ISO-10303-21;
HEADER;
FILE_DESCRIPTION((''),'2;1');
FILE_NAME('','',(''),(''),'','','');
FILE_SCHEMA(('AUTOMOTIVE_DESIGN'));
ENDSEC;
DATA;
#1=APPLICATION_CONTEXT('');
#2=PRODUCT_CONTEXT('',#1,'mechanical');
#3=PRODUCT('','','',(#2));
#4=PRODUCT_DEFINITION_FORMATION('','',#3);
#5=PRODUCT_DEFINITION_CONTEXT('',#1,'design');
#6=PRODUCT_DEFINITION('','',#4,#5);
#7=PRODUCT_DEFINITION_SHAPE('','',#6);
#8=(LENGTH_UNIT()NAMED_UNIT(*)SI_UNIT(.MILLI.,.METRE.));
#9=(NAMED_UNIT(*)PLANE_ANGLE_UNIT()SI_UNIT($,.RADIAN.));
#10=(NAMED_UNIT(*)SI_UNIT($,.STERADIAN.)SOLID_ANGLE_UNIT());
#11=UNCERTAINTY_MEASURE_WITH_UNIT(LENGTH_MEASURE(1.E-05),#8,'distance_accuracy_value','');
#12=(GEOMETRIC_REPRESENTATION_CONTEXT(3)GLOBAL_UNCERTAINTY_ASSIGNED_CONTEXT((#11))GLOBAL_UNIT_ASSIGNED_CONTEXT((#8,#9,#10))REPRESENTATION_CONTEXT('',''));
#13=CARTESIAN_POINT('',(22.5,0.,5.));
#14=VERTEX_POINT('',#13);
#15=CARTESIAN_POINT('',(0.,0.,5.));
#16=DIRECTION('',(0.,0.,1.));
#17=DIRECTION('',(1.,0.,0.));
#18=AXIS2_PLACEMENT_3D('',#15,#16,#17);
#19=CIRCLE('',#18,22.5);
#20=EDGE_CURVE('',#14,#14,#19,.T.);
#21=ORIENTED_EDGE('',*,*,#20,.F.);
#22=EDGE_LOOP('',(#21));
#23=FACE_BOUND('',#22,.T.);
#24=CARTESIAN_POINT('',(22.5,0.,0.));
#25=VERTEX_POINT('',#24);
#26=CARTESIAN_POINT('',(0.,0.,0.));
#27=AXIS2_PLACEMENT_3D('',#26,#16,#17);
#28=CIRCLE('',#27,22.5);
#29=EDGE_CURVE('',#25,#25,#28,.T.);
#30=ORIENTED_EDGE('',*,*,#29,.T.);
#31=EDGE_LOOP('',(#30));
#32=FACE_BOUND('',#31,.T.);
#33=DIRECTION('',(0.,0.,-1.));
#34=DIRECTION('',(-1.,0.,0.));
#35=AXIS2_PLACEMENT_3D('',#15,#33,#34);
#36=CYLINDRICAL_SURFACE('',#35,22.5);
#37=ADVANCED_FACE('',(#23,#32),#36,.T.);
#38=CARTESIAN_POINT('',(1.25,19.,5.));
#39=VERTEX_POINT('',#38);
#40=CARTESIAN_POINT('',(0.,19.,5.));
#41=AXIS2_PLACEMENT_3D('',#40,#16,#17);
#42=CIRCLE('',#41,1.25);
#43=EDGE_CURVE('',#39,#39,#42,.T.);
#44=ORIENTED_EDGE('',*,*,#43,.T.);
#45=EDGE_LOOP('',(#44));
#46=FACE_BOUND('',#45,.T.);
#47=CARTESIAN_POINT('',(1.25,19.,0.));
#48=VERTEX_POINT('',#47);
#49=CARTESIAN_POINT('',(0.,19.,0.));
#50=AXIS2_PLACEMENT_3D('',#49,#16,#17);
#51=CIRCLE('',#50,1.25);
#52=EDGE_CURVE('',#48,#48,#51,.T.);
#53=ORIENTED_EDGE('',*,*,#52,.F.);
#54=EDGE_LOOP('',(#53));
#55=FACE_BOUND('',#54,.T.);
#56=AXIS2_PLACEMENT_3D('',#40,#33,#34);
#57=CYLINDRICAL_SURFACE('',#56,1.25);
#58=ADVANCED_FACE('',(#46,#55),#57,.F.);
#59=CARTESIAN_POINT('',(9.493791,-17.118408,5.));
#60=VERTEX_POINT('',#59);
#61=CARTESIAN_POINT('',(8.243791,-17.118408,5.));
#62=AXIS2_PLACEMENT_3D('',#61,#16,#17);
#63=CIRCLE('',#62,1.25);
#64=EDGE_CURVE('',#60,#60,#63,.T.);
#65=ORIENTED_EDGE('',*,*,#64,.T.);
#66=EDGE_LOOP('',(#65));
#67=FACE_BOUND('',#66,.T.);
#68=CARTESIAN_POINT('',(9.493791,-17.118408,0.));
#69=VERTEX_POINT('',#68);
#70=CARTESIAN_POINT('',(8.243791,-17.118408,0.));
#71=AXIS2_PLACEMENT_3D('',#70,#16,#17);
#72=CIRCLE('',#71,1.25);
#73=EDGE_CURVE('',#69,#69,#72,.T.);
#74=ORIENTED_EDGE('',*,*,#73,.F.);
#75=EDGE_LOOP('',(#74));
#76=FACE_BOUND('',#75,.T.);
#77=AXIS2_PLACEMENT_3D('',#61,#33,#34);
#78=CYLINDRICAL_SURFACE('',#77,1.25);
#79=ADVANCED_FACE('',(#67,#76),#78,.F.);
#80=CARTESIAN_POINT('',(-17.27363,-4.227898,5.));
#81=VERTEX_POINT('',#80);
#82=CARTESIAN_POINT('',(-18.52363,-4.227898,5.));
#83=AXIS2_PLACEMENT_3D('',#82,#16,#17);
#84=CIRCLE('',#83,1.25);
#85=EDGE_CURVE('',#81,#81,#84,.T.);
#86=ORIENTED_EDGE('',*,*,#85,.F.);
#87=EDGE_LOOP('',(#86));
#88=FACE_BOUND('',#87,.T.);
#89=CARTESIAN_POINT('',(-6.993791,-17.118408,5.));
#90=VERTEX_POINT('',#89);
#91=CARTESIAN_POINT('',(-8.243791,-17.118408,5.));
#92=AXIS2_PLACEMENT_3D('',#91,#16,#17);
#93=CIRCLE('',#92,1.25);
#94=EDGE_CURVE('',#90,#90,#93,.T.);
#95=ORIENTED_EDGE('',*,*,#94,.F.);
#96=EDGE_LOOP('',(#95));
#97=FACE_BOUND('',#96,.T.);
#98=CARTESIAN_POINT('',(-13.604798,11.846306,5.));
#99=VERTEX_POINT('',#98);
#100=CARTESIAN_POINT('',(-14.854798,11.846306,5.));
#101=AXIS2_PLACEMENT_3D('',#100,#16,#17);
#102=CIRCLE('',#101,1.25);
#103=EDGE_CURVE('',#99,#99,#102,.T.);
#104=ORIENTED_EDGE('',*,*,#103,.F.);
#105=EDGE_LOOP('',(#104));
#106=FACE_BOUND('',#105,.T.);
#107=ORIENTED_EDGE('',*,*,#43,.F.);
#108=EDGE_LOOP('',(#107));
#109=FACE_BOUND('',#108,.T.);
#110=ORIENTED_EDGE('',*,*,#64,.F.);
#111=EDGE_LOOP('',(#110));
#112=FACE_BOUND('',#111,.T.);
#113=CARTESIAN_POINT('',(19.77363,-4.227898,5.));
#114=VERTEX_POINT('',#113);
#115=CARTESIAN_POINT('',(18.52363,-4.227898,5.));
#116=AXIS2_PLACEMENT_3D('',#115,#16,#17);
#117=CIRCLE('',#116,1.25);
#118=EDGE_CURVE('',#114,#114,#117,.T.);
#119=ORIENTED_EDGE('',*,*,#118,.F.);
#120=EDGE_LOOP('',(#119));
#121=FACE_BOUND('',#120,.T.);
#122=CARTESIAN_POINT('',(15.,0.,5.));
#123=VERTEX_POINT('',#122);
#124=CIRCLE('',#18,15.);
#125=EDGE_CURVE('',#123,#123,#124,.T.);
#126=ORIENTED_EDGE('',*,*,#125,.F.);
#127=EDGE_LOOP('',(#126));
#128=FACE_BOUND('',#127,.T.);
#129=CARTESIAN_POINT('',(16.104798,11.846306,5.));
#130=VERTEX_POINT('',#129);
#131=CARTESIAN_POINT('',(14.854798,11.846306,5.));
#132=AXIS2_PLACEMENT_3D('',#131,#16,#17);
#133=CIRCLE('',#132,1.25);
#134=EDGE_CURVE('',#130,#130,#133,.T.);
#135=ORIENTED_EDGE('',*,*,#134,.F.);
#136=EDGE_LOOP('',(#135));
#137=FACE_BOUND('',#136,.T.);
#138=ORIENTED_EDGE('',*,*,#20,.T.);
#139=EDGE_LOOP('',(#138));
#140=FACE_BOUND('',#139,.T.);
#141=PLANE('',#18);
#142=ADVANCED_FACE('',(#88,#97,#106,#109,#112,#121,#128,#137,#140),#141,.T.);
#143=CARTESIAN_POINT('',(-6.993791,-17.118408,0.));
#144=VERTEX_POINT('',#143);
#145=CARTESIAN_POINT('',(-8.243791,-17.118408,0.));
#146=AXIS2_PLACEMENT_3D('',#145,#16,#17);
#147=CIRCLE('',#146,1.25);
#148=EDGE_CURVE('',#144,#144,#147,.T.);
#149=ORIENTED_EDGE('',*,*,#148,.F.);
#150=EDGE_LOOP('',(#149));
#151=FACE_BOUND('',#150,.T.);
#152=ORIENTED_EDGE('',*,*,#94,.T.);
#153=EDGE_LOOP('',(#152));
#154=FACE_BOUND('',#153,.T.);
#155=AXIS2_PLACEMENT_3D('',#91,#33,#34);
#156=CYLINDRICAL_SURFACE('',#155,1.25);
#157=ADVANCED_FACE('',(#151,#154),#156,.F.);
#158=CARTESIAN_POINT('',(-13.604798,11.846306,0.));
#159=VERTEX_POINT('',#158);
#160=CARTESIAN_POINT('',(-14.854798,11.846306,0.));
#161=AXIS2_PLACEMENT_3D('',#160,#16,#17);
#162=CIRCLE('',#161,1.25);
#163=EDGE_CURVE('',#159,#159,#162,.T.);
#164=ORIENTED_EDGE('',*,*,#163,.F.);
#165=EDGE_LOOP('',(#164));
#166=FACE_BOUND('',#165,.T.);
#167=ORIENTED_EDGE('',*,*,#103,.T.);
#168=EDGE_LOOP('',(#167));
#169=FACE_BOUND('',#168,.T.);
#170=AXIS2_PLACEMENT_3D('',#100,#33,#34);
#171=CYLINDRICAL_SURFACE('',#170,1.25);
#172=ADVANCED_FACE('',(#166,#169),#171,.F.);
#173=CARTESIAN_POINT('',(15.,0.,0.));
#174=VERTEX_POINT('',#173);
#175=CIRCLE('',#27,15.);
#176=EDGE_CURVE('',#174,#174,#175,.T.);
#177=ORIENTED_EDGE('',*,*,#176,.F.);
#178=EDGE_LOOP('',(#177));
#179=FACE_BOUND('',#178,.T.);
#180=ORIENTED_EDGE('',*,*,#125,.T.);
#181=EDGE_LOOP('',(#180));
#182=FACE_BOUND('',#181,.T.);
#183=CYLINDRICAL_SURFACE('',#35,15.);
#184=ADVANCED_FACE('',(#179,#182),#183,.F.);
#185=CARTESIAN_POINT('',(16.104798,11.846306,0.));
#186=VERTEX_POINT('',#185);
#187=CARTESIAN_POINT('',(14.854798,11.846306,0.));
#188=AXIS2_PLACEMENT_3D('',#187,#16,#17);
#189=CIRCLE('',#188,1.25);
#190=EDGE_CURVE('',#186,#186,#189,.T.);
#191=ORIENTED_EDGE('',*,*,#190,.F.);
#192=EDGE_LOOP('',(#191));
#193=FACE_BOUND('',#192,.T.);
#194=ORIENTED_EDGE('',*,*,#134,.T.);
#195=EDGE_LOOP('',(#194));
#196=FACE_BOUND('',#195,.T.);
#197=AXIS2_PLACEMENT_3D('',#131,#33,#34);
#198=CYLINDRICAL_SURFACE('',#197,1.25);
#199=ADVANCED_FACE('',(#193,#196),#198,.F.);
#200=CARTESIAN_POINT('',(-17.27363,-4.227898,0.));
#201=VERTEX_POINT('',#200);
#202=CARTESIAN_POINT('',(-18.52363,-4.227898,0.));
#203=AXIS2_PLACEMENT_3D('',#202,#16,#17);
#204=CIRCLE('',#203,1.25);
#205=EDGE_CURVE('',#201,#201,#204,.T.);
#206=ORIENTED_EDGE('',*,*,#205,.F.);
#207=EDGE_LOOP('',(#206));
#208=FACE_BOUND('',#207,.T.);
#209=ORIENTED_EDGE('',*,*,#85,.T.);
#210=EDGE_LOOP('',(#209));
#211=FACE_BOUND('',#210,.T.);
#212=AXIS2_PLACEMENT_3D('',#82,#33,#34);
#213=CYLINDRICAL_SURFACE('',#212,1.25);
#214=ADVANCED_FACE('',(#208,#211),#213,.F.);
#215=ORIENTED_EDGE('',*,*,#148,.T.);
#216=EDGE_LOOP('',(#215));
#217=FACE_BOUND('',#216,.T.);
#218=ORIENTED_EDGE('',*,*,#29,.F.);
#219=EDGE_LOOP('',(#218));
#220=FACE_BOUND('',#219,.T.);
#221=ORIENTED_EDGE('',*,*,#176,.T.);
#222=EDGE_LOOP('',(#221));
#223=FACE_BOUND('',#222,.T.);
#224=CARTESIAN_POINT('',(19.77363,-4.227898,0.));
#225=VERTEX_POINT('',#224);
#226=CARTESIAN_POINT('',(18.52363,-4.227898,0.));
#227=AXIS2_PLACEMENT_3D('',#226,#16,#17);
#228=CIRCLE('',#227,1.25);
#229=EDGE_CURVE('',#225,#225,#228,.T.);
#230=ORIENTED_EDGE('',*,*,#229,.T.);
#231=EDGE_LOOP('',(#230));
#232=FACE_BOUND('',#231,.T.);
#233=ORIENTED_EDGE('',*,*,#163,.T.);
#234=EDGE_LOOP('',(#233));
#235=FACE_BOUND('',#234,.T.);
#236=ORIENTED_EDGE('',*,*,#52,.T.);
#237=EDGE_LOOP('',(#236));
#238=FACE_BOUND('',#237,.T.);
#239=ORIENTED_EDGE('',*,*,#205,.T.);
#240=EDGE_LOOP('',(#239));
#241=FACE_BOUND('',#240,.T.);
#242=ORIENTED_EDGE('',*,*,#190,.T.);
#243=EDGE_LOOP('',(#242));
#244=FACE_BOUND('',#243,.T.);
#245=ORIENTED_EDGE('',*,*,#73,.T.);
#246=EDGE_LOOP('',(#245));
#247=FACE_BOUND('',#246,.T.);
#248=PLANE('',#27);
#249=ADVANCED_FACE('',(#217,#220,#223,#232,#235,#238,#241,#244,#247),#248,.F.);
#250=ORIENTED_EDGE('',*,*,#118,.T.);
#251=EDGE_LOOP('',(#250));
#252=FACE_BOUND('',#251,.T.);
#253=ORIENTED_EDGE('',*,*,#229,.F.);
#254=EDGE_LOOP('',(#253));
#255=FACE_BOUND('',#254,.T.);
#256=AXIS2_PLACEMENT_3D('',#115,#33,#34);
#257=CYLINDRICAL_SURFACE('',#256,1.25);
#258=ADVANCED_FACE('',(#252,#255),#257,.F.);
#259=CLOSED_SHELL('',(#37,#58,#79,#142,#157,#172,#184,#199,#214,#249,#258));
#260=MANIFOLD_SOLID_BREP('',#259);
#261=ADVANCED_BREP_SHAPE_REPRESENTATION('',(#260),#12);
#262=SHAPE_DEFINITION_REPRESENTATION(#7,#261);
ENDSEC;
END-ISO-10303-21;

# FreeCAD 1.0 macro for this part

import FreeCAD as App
import Part
import Sketcher
from FreeCAD import Vector

doc = App.newDocument("Part")
body = doc.addObject("PartDesign::Body", "Body")

sketch1 = body.newObject("Sketcher::SketchObject", "Sketch")
sketch1.AttachmentSupport = (doc.getObject("XY_Plane"), [""])
sketch1.MapMode = "FlatFace"
sketch1.addGeometry([
    Part.Circle(Vector(0, 0, 0), Vector(0, 0, 1), 22.5),
    Part.Circle(Vector(-8.2, -17.1, 0), Vector(0, 0, 1), 1.2),
    Part.Circle(Vector(-18.5, -4.2, 0), Vector(0, 0, 1), 1.2),
    Part.Circle(Vector(8.2, -17.1, 0), Vector(0, 0, 1), 1.2),
    Part.Circle(Vector(0, 0, 0), Vector(0, 0, 1), 15),
    Part.Circle(Vector(18.5, -4.2, 0), Vector(0, 0, 1), 1.2),
    Part.Circle(Vector(-14.9, 11.8, 0), Vector(0, 0, 1), 1.2),
    Part.Circle(Vector(0, 19, 0), Vector(0, 0, 1), 1.2),
    Part.Circle(Vector(14.9, 11.8, 0), Vector(0, 0, 1), 1.2),
], False)
sketch1.addConstraint([
    Sketcher.Constraint("Coincident", 0, 3, -1, 1),
    Sketcher.Constraint("Coincident", 4, 3, -1, 1),
    Sketcher.Constraint("Equal", 1, 2),
    Sketcher.Constraint("Equal", 2, 3),
    Sketcher.Constraint("Equal", 3, 5),
    Sketcher.Constraint("Equal", 5, 6),
    Sketcher.Constraint("Equal", 6, 7),
    Sketcher.Constraint("Equal", 7, 8),
    Sketcher.Constraint("Symmetric", 1, 3, 3, 3, -2),
    Sketcher.Constraint("Symmetric", 2, 3, 5, 3, -2),
    Sketcher.Constraint("Symmetric", 6, 3, 8, 3, -2),
    Sketcher.Constraint("PointOnObject", 7, 3, -2),
    Sketcher.Constraint("Diameter", 0, 45.0),
    Sketcher.Constraint("Diameter", 4, 30.0),
    Sketcher.Constraint("Diameter", 1, 2.5),
    Sketcher.Constraint("DistanceY", -1, 1, 7, 3, 19.0),
    Sketcher.Constraint("DistanceX", 6, 3, -1, 1, 14.854798),
    Sketcher.Constraint("DistanceX", 1, 3, -1, 1, 8.243791),
    Sketcher.Constraint("DistanceY", 1, 3, -1, 1, 17.118408),
    Sketcher.Constraint("DistanceX", 2, 3, -1, 1, 18.52363),
    Sketcher.Constraint("DistanceY", 1, 3, 2, 3, 12.890511),
    Sketcher.Constraint("DistanceY", -1, 1, 6, 3, 11.846306),
])
pad1 = body.newObject("PartDesign::Pad", "Pad")
pad1.Profile = sketch1
pad1.Length = 5

doc.recompute()
